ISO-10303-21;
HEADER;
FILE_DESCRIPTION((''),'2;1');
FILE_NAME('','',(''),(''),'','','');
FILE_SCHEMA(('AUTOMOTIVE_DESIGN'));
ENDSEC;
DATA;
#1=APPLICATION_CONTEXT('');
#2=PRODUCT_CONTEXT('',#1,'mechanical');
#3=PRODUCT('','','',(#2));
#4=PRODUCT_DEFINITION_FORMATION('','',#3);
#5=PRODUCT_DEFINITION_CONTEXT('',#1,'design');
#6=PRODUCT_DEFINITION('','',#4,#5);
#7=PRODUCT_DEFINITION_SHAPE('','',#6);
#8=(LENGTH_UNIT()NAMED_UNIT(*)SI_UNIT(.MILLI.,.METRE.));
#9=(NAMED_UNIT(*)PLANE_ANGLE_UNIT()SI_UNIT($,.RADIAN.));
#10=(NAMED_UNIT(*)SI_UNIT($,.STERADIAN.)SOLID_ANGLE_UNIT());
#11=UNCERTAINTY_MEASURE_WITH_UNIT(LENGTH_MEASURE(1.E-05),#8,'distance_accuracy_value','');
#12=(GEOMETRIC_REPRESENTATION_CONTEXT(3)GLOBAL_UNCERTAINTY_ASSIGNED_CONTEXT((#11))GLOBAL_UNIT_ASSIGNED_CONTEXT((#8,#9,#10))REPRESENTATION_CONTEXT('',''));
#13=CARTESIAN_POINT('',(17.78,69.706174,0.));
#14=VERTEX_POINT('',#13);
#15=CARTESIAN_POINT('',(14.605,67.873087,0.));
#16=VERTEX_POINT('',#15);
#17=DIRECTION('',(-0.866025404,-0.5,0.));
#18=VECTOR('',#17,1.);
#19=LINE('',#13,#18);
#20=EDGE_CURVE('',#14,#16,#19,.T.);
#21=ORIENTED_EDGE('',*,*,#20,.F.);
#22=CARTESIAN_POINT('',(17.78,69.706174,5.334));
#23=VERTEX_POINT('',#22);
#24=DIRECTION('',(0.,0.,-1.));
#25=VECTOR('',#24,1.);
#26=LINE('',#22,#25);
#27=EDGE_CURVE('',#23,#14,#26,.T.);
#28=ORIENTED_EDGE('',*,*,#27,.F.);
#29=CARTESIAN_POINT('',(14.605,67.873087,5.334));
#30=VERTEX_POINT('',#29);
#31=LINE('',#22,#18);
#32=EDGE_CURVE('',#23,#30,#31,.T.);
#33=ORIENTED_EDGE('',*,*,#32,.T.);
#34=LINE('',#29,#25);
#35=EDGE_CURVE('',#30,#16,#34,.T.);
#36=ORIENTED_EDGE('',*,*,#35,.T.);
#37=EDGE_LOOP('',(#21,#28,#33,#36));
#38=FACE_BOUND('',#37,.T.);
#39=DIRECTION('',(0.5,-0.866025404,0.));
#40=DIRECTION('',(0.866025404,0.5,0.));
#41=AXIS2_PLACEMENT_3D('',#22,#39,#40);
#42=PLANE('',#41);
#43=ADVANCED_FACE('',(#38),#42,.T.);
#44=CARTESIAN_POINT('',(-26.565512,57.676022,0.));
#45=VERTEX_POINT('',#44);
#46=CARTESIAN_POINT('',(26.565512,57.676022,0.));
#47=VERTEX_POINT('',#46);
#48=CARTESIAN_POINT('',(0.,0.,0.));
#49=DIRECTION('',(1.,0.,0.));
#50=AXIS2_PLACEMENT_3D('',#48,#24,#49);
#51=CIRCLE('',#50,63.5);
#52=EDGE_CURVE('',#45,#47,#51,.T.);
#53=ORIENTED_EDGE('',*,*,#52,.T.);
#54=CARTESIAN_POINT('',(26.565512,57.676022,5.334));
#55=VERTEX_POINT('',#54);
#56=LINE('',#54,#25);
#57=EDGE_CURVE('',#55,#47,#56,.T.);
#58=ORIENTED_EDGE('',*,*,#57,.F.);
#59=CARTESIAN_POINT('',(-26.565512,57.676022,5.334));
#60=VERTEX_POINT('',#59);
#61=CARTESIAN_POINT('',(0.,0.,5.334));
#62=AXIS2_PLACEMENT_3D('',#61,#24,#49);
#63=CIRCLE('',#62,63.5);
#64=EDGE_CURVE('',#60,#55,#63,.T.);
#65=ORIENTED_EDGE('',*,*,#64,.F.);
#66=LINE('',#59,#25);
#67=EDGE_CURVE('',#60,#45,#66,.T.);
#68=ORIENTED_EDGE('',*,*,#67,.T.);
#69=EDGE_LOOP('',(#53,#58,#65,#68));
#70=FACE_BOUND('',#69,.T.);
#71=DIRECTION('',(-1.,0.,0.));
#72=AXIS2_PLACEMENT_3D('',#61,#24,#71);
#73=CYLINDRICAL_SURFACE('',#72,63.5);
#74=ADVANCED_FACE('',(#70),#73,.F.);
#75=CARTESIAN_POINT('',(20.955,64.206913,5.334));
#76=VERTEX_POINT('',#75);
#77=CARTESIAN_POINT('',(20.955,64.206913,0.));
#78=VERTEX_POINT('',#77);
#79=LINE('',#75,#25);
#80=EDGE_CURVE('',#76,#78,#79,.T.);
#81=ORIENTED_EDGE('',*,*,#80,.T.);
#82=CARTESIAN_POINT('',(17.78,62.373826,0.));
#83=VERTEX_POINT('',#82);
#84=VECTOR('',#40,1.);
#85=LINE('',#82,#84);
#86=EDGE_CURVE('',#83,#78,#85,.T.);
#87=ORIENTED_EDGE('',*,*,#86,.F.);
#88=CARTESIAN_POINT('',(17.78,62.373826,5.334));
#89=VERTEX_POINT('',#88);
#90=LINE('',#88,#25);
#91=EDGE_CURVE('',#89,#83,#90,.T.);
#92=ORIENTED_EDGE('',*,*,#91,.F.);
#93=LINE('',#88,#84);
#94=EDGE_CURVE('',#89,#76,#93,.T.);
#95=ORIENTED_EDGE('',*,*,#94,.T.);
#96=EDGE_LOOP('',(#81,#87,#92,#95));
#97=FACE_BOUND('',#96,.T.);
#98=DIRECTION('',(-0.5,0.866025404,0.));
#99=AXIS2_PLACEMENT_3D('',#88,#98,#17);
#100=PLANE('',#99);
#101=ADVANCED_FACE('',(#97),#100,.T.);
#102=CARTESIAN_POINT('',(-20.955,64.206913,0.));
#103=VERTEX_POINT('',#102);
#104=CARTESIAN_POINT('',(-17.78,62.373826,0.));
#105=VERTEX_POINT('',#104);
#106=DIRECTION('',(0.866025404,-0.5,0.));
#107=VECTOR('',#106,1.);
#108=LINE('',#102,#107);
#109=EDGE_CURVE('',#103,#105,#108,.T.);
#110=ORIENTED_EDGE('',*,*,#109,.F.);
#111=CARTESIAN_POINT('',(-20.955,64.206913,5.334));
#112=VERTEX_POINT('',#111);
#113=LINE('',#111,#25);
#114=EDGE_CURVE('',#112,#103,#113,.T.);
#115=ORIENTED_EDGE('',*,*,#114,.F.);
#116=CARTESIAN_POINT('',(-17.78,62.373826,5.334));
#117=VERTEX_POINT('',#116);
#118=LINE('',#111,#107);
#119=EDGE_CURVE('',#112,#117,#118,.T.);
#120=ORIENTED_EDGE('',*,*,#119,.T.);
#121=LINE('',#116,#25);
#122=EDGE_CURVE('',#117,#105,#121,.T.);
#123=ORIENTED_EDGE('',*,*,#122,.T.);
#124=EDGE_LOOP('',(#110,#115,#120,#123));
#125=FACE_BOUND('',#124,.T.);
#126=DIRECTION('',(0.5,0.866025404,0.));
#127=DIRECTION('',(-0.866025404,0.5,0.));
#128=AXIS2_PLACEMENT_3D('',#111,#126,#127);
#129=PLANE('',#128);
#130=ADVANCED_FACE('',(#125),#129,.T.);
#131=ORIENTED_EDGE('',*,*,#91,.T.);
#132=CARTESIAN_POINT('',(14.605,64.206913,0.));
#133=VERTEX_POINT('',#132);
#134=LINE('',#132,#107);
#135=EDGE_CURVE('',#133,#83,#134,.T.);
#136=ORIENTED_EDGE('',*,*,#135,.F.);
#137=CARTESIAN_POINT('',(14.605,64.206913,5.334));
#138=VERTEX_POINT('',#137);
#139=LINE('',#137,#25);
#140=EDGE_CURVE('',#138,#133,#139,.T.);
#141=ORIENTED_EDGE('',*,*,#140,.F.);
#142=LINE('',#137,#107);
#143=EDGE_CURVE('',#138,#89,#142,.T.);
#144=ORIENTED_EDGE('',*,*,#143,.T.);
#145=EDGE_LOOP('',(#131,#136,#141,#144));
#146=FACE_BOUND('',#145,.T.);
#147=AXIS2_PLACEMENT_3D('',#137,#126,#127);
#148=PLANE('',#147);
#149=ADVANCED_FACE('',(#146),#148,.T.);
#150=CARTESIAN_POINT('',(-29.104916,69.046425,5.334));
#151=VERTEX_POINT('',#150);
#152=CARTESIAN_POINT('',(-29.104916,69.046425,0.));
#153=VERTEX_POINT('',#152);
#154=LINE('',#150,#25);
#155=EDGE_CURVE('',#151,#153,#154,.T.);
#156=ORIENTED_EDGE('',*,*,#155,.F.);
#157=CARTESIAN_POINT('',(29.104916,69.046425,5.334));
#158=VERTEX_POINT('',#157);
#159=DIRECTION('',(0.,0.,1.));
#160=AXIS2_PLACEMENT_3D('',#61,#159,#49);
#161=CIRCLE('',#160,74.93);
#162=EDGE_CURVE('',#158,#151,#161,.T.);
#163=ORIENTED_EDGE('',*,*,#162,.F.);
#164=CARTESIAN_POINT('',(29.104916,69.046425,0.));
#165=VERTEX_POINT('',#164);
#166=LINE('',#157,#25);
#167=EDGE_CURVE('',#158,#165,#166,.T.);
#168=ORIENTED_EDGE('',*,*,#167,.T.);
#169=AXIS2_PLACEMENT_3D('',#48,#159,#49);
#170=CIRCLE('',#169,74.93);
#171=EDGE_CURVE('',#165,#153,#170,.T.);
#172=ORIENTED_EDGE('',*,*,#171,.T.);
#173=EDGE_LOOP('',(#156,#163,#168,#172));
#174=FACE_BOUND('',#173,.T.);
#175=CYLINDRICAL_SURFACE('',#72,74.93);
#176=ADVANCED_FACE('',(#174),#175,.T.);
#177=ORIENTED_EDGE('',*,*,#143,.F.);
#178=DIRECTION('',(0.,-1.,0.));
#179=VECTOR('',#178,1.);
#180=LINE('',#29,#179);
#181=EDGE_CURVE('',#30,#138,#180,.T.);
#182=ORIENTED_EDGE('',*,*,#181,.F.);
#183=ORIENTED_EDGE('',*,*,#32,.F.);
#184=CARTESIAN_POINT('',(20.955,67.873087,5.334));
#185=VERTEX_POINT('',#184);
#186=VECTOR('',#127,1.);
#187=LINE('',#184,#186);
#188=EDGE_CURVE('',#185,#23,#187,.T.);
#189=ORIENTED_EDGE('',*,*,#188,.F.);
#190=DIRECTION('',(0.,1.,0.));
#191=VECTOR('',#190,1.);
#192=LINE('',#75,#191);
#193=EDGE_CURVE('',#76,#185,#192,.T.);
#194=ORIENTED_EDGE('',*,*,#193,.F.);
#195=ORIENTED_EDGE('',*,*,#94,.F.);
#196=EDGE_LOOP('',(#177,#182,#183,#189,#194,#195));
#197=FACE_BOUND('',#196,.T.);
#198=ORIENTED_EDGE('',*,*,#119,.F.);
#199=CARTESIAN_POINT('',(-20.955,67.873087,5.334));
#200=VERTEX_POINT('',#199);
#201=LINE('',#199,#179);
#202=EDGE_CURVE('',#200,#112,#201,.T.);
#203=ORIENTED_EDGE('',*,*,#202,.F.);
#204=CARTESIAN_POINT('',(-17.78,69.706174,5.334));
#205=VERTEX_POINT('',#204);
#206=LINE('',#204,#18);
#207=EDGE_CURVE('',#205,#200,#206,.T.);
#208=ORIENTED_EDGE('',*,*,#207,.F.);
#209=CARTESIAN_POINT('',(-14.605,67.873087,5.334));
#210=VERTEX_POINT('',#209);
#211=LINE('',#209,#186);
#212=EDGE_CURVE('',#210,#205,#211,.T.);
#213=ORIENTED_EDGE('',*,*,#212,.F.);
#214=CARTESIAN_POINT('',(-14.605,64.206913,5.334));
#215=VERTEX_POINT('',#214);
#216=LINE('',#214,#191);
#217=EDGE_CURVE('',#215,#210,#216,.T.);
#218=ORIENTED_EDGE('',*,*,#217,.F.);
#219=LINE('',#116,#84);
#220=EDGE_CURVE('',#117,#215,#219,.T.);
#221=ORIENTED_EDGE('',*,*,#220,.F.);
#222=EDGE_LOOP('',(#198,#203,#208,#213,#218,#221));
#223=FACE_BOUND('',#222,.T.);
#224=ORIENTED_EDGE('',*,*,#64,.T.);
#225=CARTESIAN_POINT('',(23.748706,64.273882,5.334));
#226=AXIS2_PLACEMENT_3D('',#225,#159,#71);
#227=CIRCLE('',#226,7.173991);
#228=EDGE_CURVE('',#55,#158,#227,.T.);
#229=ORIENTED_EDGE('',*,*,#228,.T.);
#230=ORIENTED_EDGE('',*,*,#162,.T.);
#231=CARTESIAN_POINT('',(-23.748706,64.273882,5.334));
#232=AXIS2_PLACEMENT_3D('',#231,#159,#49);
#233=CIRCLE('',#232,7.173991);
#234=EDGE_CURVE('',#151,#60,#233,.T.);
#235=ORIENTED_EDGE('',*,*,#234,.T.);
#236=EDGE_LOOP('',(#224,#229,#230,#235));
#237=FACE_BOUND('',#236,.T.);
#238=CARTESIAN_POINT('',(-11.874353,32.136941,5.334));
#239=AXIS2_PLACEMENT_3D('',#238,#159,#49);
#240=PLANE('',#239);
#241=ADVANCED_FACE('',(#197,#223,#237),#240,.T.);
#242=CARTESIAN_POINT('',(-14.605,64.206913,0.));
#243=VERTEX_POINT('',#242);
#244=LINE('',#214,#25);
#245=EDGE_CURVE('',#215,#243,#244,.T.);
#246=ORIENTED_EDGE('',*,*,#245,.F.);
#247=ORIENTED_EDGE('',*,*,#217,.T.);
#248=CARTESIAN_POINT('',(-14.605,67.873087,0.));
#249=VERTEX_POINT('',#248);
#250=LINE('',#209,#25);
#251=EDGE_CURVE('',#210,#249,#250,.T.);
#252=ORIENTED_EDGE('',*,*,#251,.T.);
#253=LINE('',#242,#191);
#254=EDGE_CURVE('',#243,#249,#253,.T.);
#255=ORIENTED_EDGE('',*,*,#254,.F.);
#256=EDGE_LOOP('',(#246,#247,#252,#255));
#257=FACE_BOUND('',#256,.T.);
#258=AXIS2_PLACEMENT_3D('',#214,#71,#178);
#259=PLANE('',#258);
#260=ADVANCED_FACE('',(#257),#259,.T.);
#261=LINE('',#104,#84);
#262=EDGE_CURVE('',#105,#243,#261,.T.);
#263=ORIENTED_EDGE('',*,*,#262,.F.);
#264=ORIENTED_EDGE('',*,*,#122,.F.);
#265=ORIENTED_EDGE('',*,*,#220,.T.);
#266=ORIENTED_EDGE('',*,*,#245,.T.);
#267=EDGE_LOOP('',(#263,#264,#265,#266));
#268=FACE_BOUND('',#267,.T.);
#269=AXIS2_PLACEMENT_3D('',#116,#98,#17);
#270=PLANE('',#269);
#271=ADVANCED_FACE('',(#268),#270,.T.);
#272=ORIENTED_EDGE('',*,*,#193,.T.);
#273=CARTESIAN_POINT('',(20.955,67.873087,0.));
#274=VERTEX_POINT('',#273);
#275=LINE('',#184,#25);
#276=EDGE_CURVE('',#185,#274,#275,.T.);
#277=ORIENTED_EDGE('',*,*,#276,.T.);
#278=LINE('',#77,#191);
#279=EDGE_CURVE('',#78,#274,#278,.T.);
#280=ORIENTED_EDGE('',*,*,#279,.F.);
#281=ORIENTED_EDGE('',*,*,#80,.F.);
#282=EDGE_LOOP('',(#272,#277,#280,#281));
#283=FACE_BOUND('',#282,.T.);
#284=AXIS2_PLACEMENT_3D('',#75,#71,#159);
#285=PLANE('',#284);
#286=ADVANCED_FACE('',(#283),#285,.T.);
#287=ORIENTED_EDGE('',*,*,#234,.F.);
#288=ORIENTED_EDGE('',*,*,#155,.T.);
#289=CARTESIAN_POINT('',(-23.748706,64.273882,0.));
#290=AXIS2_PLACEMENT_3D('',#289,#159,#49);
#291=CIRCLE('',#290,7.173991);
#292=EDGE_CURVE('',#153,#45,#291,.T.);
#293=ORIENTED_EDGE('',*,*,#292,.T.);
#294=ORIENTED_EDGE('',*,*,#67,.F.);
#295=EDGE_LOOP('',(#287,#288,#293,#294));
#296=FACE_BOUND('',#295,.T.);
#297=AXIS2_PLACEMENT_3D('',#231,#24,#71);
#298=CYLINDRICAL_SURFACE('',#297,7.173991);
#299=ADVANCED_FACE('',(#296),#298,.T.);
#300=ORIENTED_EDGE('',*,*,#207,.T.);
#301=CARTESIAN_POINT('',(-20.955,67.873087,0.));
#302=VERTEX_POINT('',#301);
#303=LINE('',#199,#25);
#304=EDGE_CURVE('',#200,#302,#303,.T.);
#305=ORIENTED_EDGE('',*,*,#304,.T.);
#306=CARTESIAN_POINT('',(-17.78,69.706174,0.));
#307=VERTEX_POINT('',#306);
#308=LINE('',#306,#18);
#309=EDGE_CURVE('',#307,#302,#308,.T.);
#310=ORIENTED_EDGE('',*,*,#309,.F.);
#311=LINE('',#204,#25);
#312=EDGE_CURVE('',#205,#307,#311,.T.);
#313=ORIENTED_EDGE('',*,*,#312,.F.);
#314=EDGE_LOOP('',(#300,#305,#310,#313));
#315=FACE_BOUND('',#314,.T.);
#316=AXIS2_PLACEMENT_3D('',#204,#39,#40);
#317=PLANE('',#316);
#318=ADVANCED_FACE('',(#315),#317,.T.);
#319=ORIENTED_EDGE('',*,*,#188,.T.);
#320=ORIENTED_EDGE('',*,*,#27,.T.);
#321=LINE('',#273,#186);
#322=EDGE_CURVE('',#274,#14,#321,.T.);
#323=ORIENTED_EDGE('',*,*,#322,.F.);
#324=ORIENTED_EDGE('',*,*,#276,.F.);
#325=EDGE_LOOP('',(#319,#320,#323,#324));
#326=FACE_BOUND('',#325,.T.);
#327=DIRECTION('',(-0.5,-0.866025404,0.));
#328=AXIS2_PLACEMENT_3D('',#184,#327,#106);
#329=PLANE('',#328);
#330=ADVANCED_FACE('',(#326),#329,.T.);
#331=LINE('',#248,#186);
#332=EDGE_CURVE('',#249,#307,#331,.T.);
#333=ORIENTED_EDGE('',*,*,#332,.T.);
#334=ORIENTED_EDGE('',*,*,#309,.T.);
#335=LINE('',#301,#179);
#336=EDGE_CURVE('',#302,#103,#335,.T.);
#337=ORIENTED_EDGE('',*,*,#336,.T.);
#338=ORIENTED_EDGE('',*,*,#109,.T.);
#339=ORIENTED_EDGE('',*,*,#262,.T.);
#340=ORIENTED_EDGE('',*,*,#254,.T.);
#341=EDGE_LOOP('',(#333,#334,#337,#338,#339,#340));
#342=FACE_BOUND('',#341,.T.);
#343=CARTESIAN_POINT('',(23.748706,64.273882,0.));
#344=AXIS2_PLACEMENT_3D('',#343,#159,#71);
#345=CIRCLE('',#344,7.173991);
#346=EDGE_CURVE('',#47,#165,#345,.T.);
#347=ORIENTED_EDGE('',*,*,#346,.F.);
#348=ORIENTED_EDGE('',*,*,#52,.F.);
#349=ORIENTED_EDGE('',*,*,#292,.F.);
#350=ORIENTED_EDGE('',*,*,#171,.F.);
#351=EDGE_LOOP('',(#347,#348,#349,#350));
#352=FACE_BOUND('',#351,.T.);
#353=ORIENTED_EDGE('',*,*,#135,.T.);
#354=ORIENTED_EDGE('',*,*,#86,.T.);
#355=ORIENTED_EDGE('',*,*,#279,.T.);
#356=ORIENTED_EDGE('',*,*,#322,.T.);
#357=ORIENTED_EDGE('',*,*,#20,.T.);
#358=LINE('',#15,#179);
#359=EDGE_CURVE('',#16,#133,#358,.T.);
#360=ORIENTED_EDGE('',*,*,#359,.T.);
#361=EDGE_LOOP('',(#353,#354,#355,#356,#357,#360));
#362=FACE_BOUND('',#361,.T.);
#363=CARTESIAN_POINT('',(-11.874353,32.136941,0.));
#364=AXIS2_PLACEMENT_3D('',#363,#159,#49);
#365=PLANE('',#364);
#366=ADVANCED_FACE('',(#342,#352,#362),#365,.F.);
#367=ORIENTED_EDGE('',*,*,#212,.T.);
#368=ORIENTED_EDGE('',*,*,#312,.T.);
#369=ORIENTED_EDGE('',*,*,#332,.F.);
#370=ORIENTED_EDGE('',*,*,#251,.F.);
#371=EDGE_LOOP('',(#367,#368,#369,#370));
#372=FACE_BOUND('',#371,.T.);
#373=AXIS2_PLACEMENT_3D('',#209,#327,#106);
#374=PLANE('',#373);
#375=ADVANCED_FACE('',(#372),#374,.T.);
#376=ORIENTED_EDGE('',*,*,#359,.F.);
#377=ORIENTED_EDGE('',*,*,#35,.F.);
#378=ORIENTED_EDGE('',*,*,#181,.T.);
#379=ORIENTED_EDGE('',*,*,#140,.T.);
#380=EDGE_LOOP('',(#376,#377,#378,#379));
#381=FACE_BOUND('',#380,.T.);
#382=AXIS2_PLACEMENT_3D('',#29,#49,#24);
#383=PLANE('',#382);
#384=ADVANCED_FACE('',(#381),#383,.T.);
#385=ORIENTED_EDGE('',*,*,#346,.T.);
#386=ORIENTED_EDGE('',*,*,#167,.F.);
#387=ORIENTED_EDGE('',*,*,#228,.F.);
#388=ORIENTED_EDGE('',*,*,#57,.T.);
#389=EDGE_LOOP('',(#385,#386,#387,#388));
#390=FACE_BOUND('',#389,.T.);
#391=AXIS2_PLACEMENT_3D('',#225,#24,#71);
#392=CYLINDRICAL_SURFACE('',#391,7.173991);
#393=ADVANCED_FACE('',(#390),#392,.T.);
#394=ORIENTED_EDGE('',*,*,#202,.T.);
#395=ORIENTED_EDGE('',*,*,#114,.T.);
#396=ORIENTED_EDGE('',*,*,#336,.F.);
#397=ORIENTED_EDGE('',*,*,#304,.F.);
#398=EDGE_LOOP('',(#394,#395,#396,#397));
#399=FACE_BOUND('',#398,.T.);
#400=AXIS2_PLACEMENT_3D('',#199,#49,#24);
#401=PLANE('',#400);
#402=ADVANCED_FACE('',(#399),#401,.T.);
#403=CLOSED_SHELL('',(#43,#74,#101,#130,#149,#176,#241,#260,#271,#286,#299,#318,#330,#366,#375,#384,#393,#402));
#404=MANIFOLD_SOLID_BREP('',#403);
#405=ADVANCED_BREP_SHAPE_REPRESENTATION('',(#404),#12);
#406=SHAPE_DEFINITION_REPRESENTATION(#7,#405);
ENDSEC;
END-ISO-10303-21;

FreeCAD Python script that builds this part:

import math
import FreeCAD as App
import Part
import Sketcher
from FreeCAD import Vector
Q = App.Units.Quantity


def add_polygon(sketch, points):
    """Adds a closed chain of lines whose ends are joined by coincident constraints."""
    first, n = sketch.GeometryCount, len(points)
    for a, b in zip(points, points[1:] + points[:1]):
        sketch.addGeometry(Part.LineSegment(App.Vector(*a, 0), App.Vector(*b, 0)), False)
    for i in range(n):
        sketch.addConstraint(Sketcher.Constraint("Coincident", first + i, 2, first + (i + 1) % n, 1))

doc = App.newDocument("Part")
params = doc.addObject("Spreadsheet::Sheet", "Params")
for row, (alias, value) in enumerate([
    ("sketch1_radius", "2.5 in"),
    ("sketch1_radius2", "2.95 in"),
    ("pad1_length", "0.21 in"),
], start=1):
    params.set(f"A{row}", alias)
    params.set(f"B{row}", "=" + value)
    params.setAlias(f"B{row}", alias)

body = doc.addObject("PartDesign::Body", "Body")

# Sketch on XY plane
sketch1 = doc.addObject("Sketcher::SketchObject", "Sketch")
body.addObject(sketch1)
sketch1.AttachmentSupport = (doc.XY_Plane, [""])
sketch1.MapMode = "FlatFace"
sketch1.addGeometry(Part.ArcOfCircle(Part.Circle(Vector(0, 0, 0), Vector(0, 0, 1), 74.9), math.radians(67), math.radians(113)), False)  # 0
sketch1.addGeometry(Part.ArcOfCircle(Part.Circle(Vector(-23.7, 64.3, 0), Vector(0, 0, 1), 7.2), math.radians(138), math.radians(247)), False)  # 1
sketch1.addGeometry(Part.ArcOfCircle(Part.Circle(Vector(0, 0, 0), Vector(0, 0, 1), 63.5), math.radians(65), math.radians(115)), False)  # 2
sketch1.addGeometry(Part.ArcOfCircle(Part.Circle(Vector(23.7, 64.3, 0), Vector(0, 0, 1), 7.2), math.radians(-67), math.radians(42)), False)  # 3
add_polygon(sketch1, [(-14.6, 64.2), (-17.8, 62.4), (-21, 64.2), (-21, 67.9), (-17.8, 69.7), (-14.6, 67.9)])  # lines 4-9
add_polygon(sketch1, [(21, 64.2), (17.8, 62.4), (14.6, 64.2), (14.6, 67.9), (17.8, 69.7), (21, 67.9)])  # lines 10-15
sketch1.addConstraint([
    Sketcher.Constraint("Coincident", 0, 2, 1, 1),
    Sketcher.Constraint("Coincident", 1, 2, 2, 2),
    Sketcher.Constraint("Coincident", 2, 1, 3, 1),
    Sketcher.Constraint("Coincident", 3, 2, 0, 1),
    Sketcher.Constraint("Vertical", 6),
    Sketcher.Constraint("Vertical", 9),
    Sketcher.Constraint("Vertical", 12),
    Sketcher.Constraint("Vertical", 15),
    Sketcher.Constraint("Coincident", 0, 3, -1, 1),
    Sketcher.Constraint("Coincident", 2, 3, -1, 1),
    Sketcher.Constraint("Equal", 1, 3),
    Sketcher.Constraint("Symmetric", 1, 3, 3, 3, -2),
    Sketcher.Constraint("Symmetric", 4, 2, 10, 2, -2),
    Sketcher.Constraint("Symmetric", 9, 2, 11, 2, -2),
    Sketcher.Constraint("Symmetric", 7, 2, 13, 2, -2),
    Sketcher.Constraint("Symmetric", 6, 2, 14, 2, -2),
    Sketcher.Constraint("Parallel", 4, 7),
    Sketcher.Constraint("Parallel", 5, 8),
    Sketcher.Constraint("Parallel", 7, 10),
    Sketcher.Constraint("Parallel", 8, 11),
    Sketcher.Constraint("Parallel", 10, 13),
    Sketcher.Constraint("Horizontal", 6, 2, 8, 2),
    Sketcher.Constraint("Horizontal", 5, 2, 9, 2),
    Sketcher.Constraint("Radius", 2, Q("2.5 in")),
    Sketcher.Constraint("Radius", 0, Q("2.95 in")),
    Sketcher.Constraint("Angle", 4, Q("-150 deg")),
    Sketcher.Constraint("DistanceX", 4, 2, -1, 1, Q("0.7 in")),
    Sketcher.Constraint("DistanceX", 6, 2, 8, 2, Q("0.25 in")),
    Sketcher.Constraint("Radius", 1, 7.173991),
    Sketcher.Constraint("DistanceY", 4, 2, 0, 2, 6.672599),
    Sketcher.Constraint("DistanceY", 6, 1, 6, 2, 3.666174),
    Sketcher.Constraint("DistanceY", -1, 1, 1, 3, 64.273882),
    Sketcher.Constraint("DistanceX", 1, 3, 3, 3, 47.497412),
])
sketch1.setExpression("Constraints[35]", "Params.sketch1_radius")
sketch1.setExpression("Constraints[36]", "Params.sketch1_radius2")
pad1 = doc.addObject("PartDesign::Pad", "Pad")
body.addObject(pad1)
pad1.Profile = sketch1
pad1.setExpression("Length", "Params.pad1_length")

doc.recompute()
